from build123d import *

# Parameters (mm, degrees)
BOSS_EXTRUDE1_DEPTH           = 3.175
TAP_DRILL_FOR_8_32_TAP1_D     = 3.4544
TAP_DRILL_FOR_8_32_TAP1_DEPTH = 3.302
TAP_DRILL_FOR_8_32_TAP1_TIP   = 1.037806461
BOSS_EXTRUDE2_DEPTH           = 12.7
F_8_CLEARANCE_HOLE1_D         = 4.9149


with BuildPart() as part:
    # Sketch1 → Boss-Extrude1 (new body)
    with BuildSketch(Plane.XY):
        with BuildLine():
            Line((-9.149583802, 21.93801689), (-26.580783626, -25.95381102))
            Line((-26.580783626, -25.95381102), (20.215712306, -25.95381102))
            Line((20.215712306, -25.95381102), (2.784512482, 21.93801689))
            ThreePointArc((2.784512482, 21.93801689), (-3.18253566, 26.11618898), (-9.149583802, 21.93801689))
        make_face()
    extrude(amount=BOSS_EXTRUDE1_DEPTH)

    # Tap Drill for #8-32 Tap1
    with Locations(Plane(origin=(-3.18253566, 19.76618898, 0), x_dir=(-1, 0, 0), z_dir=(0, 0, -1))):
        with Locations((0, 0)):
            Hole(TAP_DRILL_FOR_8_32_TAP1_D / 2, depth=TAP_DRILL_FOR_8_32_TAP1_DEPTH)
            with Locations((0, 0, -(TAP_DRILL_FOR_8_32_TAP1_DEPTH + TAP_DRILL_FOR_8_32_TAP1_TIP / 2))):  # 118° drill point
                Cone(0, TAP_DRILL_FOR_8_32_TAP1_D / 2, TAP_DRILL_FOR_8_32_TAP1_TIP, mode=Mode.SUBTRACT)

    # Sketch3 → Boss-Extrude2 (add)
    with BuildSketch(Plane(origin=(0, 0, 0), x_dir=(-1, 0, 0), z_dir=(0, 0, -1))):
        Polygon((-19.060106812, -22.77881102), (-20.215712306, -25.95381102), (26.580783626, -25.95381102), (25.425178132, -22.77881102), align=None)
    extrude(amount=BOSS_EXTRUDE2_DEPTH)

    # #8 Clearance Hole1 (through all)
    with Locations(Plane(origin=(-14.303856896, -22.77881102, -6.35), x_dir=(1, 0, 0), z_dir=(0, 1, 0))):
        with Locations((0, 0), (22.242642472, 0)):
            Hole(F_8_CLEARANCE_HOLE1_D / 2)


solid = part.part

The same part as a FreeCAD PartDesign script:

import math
import FreeCAD as App
import Part
import Sketcher

V = App.Vector
Q = App.Units.Quantity

doc = App.newDocument("Part")
body = doc.addObject("PartDesign::Body", "Body")

sketch1 = doc.addObject("Sketcher::SketchObject", "Sketch")
body.addObject(sketch1)
sketch1.AttachmentSupport = (doc.XY_Plane, [""])
sketch1.MapMode = "FlatFace"
sketch1.addGeometry([
    Part.LineSegment(V(-9, 22, 0), V(-27, -26, 0)),
    Part.LineSegment(V(-27, -26, 0), V(20, -26, 0)),
    Part.LineSegment(V(20, -26, 0), V(3, 22, 0)),
    Part.ArcOfCircle(Part.Circle(V(-3, 20, 0), V(0, 0, 1), 6), math.radians(20), math.radians(160)),
], False)
sketch1.addConstraint([
    Sketcher.Constraint("Coincident", 0, 2, 1, 1),
    Sketcher.Constraint("Coincident", 1, 2, 2, 1),
    Sketcher.Constraint("Tangent", 2, 2, 3, 1),
    Sketcher.Constraint("Tangent", 3, 2, 0, 1),
    Sketcher.Constraint("Horizontal", 1),
    Sketcher.Constraint("Horizontal", 2, 2, 3, 2),
    Sketcher.Constraint("Radius", 3, Q("0.25 in")),
    Sketcher.Constraint("Angle", 0, Q("-110 deg")),
    Sketcher.Constraint("DistanceY", 0, 2, 3, 3, Q("1.8 in")),
    Sketcher.Constraint("DistanceY", -1, 1, 3, 3, Q("19.766189 mm")),
    Sketcher.Constraint("DistanceX", 3, 3, -1, 1, Q("3.182536 mm")),
])
pad1 = doc.addObject("PartDesign::Pad", "Pad")
body.addObject(pad1)
pad1.Profile = sketch1
pad1.Length = Q("0.125 in")

sketch2 = doc.addObject("Sketcher::SketchObject", "Sketch001")
body.addObject(sketch2)
sketch2.AttachmentSupport = (doc.XY_Plane, [""])
sketch2.MapMode = "FlatFace"
sketch2.addGeometry(Part.Circle(V(-3.2, 19.8, 0), V(0, 0, 1), 1.7), False)
sketch2.addConstraint([
    Sketcher.Constraint("Diameter", 0, Q("0.136 in")),
    Sketcher.Constraint("DistanceY", -1, 1, 0, 3, Q("19.766189 mm")),
    Sketcher.Constraint("DistanceX", 0, 3, -1, 1, Q("3.182536 mm")),
])
doc.recompute()
hole = doc.addObject("PartDesign::Hole", "Hole")
body.addObject(hole)
hole.Profile = sketch2
hole.ThreadType = "None"
hole.Diameter = Q("0.136 in")
hole.DepthType = "Dimension"
hole.Depth = Q("0.13 in")
hole.DrillPoint = "Angled"
hole.DrillPointAngle = 118
hole.Reversed = True

sketch3 = doc.addObject("Sketcher::SketchObject", "Sketch002")
body.addObject(sketch3)
sketch3.AttachmentSupport = (doc.XY_Plane, [""])
sketch3.MapMode = "FlatFace"
sketch3.addGeometry([
    Part.LineSegment(V(19.1, -22.8, 0), V(20.2, -26, 0)),
    Part.LineSegment(V(20.2, -26, 0), V(-26.6, -26, 0)),
    Part.LineSegment(V(-26.6, -26, 0), V(-25.4, -22.8, 0)),
    Part.LineSegment(V(-25.4, -22.8, 0), V(19.1, -22.8, 0)),
], False)
sketch3.addConstraint([
    Sketcher.Constraint("Coincident", 0, 2, 1, 1),
    Sketcher.Constraint("Coincident", 1, 2, 2, 1),
    Sketcher.Constraint("Coincident", 2, 2, 3, 1),
    Sketcher.Constraint("Coincident", 3, 2, 0, 1),
    Sketcher.Constraint("Horizontal", 1),
    Sketcher.Constraint("Horizontal", 3),
    Sketcher.Constraint("Equal", 0, 2),
    Sketcher.Constraint("Angle", 0, Q("-70 deg")),
    Sketcher.Constraint("DistanceY", 1, 2, 2, 2, Q("0.125 in")),
    Sketcher.Constraint("DistanceX", 1, 2, 1, 1, Q("46.796496 mm")),
    Sketcher.Constraint("DistanceY", 0, 2, -1, 1, Q("25.953811 mm")),
    Sketcher.Constraint("DistanceX", 2, 2, -1, 1, Q("25.425178 mm")),
])
pad2 = doc.addObject("PartDesign::Pad", "Pad001")
body.addObject(pad2)
pad2.Profile = sketch3
pad2.Length = Q("0.5 in")
pad2.Reversed = True

sketch4 = doc.addObject("Sketcher::SketchObject", "Sketch003")
body.addObject(sketch4)
sketch4.AttachmentSupport = (doc.XZ_Plane, [""])
sketch4.MapMode = "FlatFace"
sketch4.AttachmentOffset = App.Placement(V(0, 0, 22.778811), App.Rotation())
sketch4.addGeometry([
    Part.Circle(V(-14.3, -6.3, 0), V(0, 0, 1), 2.5),
    Part.Circle(V(7.9, -6.3, 0), V(0, 0, 1), 2.5),
], False)
sketch4.addConstraint([
    Sketcher.Constraint("Equal", 0, 1),
    Sketcher.Constraint("Horizontal", 0, 3, 1, 3),
    Sketcher.Constraint("Diameter", 0, Q("0.1935 in")),
    Sketcher.Constraint("DistanceY", 0, 3, -1, 1, Q("0.25 in")),
    Sketcher.Constraint("DistanceX", 0, 3, -1, 1, Q("14.303857 mm")),
    Sketcher.Constraint("DistanceX", -1, 1, 1, 3, Q("7.938786 mm")),
])
doc.recompute()
hole2 = doc.addObject("PartDesign::Hole", "Hole001")
body.addObject(hole2)
hole2.Profile = sketch4
hole2.ThreadType = "None"
hole2.Diameter = Q("0.1935 in")
hole2.DepthType = "ThroughAll"
hole2.Reversed = True

doc.recompute()
